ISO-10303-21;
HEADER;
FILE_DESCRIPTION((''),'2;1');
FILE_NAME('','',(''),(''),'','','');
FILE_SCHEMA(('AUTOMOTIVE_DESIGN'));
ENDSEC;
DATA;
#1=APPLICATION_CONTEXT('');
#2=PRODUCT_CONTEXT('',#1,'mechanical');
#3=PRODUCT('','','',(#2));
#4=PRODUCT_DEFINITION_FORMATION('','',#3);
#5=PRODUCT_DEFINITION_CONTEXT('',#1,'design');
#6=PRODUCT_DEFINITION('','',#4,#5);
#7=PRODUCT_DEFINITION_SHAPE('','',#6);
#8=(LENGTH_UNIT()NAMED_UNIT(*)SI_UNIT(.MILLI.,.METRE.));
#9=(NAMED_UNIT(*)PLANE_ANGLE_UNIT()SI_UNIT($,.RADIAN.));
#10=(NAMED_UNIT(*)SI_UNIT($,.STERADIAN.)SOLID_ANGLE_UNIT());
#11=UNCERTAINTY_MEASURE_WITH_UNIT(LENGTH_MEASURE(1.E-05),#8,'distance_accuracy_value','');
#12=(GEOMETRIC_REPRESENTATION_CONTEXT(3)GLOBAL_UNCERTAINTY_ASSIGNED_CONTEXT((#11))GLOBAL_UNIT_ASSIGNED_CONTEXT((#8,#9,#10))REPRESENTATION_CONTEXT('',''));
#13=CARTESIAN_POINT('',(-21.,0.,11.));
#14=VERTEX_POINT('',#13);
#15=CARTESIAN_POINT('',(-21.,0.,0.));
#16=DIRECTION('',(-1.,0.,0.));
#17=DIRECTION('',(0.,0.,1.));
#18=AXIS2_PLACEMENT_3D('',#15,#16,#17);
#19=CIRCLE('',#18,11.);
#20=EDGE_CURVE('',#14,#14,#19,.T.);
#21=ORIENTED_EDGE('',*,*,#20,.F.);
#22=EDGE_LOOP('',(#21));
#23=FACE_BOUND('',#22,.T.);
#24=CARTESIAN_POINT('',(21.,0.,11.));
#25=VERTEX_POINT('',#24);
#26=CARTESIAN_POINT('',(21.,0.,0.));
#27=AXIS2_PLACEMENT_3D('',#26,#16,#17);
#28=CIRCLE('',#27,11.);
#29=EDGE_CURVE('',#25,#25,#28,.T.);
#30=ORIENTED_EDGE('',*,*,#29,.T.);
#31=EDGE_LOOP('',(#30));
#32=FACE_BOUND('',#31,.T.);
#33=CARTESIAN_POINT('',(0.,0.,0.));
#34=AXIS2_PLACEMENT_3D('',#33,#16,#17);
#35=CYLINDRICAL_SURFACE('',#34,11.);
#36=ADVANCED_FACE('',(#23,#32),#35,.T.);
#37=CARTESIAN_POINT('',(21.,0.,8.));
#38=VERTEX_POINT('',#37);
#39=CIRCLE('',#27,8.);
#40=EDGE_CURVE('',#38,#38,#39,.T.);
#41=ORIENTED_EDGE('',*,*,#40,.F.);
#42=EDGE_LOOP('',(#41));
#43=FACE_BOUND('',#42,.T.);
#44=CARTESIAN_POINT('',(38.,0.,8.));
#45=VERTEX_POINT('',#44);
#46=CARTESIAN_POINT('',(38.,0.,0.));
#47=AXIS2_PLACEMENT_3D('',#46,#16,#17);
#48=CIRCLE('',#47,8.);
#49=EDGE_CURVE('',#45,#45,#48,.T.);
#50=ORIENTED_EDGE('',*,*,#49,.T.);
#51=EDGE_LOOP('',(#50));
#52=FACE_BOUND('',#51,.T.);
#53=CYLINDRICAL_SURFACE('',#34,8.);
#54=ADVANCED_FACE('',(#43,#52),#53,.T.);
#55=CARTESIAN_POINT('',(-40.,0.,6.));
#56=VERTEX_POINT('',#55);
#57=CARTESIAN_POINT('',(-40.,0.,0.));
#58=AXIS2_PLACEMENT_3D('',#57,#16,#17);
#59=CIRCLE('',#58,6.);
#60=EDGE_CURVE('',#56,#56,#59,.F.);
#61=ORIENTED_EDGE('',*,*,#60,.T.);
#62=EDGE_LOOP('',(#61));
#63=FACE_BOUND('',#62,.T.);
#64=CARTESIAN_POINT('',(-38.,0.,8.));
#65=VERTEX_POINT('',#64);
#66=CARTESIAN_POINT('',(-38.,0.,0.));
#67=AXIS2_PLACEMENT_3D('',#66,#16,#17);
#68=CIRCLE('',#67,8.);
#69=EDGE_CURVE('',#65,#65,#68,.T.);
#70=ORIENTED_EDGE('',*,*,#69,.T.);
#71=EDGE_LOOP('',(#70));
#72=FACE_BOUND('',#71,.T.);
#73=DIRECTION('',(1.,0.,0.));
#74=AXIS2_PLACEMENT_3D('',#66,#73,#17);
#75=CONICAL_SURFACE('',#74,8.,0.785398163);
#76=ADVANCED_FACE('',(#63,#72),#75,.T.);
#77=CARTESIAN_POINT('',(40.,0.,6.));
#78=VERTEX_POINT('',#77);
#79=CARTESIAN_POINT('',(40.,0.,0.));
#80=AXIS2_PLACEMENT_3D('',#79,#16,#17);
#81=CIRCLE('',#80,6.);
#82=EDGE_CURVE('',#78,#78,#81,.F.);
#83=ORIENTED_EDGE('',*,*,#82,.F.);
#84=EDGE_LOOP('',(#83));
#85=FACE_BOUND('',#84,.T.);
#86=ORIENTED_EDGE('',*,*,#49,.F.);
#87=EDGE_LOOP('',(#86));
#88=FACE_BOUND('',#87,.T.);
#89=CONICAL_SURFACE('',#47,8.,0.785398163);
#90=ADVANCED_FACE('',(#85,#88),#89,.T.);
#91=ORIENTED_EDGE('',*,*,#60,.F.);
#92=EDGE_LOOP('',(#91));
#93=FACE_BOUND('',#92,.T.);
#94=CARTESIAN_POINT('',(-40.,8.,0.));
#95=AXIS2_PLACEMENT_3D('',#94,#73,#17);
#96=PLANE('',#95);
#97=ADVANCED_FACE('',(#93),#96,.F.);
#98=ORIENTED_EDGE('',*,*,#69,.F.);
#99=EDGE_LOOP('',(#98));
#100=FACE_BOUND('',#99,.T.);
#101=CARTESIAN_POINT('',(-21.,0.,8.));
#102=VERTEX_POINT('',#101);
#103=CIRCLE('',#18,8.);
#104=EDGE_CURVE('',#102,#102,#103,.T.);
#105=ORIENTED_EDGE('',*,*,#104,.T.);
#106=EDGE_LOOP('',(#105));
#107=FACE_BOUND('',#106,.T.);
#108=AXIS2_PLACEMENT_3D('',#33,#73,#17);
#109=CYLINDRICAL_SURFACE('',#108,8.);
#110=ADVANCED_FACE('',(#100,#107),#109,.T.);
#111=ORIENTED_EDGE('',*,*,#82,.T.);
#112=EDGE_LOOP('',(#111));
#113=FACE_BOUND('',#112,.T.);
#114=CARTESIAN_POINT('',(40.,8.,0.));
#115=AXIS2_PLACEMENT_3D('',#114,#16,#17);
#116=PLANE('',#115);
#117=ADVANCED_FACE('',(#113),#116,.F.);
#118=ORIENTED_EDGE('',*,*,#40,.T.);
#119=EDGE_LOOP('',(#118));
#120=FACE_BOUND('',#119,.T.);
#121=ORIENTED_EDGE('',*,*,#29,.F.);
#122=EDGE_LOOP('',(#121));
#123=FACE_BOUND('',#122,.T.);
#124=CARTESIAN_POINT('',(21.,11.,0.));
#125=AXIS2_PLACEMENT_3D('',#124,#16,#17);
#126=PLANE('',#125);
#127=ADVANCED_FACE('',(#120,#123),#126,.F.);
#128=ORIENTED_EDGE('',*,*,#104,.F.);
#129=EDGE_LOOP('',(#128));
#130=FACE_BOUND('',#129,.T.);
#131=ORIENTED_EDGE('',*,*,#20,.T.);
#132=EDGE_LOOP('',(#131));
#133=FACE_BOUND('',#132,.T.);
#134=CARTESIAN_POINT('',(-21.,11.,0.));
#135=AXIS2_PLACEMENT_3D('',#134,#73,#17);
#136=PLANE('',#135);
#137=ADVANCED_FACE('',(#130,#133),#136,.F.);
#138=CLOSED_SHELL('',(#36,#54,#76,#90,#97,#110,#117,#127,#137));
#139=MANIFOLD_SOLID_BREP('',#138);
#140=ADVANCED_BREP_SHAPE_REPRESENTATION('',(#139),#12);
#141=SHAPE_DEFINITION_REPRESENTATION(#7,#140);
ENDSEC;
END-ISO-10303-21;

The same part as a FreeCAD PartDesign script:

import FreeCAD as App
import Part
import Sketcher


def edges_at(feature, points):
    """Names of the edges that pass closest to the given points."""
    edges = feature.Shape.Edges
    near = lambda p: min(range(len(edges)), key=lambda i: edges[i].distToShape(Part.Vertex(*p))[0])
    return sorted({f"Edge{near(p) + 1}" for p in points})


def add_polygon(sketch, points):
    """Adds a closed chain of lines whose ends are joined by coincident constraints."""
    first, n = sketch.GeometryCount, len(points)
    for a, b in zip(points, points[1:] + points[:1]):
        sketch.addGeometry(Part.LineSegment(App.Vector(*a, 0), App.Vector(*b, 0)), False)
    for i in range(n):
        sketch.addConstraint(Sketcher.Constraint("Coincident", first + i, 2, first + (i + 1) % n, 1))

doc = App.newDocument("Part")
body = doc.addObject("PartDesign::Body", "Body")

sketch1 = doc.addObject("Sketcher::SketchObject", "Sketch")
body.addObject(sketch1)
sketch1.AttachmentSupport = (doc.XY_Plane, [""])
sketch1.MapMode = "FlatFace"
add_polygon(sketch1, [(0, 11), (0, 0), (40, 0), (40, 8), (21, 8), (21, 11)])
sketch1.addConstraint(Sketcher.Constraint("Vertical", 0))
sketch1.addConstraint(Sketcher.Constraint("Horizontal", 1))
sketch1.addConstraint(Sketcher.Constraint("Vertical", 2))
sketch1.addConstraint(Sketcher.Constraint("Horizontal", 3))
sketch1.addConstraint(Sketcher.Constraint("Vertical", 4))
sketch1.addConstraint(Sketcher.Constraint("Horizontal", 5))
sketch1.addConstraint(Sketcher.Constraint("Coincident", 0, 2, -1, 1))
sketch1.addConstraint(Sketcher.Constraint("DistanceX", 1, 1, 1, 2, 40.0))
sketch1.addConstraint(Sketcher.Constraint("DistanceX", 3, 2, 3, 1, 19.0))
sketch1.addConstraint(Sketcher.Constraint("DistanceY", 0, 2, 0, 1, 11.0))
sketch1.addConstraint(Sketcher.Constraint("DistanceY", 2, 1, 2, 2, 8.0))
revolution = doc.addObject("PartDesign::Revolution", "Revolution")
body.addObject(revolution)
revolution.Profile = sketch1
revolution.ReferenceAxis = (sketch1, ["H_Axis"])
revolution.Angle = 360
doc.recompute()

chamfer = doc.addObject("PartDesign::Chamfer", "Chamfer")
body.addObject(chamfer)
chamfer.Base = (revolution, edges_at(revolution, [(40, 0, -8)]))
chamfer.Size = 2
body2 = doc.addObject("PartDesign::Body", "Body001")
doc.recompute()

body2.BaseFeature = body
doc.recompute()

mirroring = doc.addObject("Part::Mirroring", "Mirroring")
mirroring.Source = body
mirroring.Base = App.Vector(0, 0, 0)
mirroring.Normal = App.Vector(1, 0, 0)
body3 = doc.addObject("PartDesign::Body", "Body002")
body3.BaseFeature = mirroring
boolean = doc.addObject("PartDesign::Boolean", "Boolean")
body2.addObject(boolean)
boolean.Type = "Fuse"
boolean.addObjects([body3])
doc.recompute()
mirroring.Visibility = False

doc.recompute()
